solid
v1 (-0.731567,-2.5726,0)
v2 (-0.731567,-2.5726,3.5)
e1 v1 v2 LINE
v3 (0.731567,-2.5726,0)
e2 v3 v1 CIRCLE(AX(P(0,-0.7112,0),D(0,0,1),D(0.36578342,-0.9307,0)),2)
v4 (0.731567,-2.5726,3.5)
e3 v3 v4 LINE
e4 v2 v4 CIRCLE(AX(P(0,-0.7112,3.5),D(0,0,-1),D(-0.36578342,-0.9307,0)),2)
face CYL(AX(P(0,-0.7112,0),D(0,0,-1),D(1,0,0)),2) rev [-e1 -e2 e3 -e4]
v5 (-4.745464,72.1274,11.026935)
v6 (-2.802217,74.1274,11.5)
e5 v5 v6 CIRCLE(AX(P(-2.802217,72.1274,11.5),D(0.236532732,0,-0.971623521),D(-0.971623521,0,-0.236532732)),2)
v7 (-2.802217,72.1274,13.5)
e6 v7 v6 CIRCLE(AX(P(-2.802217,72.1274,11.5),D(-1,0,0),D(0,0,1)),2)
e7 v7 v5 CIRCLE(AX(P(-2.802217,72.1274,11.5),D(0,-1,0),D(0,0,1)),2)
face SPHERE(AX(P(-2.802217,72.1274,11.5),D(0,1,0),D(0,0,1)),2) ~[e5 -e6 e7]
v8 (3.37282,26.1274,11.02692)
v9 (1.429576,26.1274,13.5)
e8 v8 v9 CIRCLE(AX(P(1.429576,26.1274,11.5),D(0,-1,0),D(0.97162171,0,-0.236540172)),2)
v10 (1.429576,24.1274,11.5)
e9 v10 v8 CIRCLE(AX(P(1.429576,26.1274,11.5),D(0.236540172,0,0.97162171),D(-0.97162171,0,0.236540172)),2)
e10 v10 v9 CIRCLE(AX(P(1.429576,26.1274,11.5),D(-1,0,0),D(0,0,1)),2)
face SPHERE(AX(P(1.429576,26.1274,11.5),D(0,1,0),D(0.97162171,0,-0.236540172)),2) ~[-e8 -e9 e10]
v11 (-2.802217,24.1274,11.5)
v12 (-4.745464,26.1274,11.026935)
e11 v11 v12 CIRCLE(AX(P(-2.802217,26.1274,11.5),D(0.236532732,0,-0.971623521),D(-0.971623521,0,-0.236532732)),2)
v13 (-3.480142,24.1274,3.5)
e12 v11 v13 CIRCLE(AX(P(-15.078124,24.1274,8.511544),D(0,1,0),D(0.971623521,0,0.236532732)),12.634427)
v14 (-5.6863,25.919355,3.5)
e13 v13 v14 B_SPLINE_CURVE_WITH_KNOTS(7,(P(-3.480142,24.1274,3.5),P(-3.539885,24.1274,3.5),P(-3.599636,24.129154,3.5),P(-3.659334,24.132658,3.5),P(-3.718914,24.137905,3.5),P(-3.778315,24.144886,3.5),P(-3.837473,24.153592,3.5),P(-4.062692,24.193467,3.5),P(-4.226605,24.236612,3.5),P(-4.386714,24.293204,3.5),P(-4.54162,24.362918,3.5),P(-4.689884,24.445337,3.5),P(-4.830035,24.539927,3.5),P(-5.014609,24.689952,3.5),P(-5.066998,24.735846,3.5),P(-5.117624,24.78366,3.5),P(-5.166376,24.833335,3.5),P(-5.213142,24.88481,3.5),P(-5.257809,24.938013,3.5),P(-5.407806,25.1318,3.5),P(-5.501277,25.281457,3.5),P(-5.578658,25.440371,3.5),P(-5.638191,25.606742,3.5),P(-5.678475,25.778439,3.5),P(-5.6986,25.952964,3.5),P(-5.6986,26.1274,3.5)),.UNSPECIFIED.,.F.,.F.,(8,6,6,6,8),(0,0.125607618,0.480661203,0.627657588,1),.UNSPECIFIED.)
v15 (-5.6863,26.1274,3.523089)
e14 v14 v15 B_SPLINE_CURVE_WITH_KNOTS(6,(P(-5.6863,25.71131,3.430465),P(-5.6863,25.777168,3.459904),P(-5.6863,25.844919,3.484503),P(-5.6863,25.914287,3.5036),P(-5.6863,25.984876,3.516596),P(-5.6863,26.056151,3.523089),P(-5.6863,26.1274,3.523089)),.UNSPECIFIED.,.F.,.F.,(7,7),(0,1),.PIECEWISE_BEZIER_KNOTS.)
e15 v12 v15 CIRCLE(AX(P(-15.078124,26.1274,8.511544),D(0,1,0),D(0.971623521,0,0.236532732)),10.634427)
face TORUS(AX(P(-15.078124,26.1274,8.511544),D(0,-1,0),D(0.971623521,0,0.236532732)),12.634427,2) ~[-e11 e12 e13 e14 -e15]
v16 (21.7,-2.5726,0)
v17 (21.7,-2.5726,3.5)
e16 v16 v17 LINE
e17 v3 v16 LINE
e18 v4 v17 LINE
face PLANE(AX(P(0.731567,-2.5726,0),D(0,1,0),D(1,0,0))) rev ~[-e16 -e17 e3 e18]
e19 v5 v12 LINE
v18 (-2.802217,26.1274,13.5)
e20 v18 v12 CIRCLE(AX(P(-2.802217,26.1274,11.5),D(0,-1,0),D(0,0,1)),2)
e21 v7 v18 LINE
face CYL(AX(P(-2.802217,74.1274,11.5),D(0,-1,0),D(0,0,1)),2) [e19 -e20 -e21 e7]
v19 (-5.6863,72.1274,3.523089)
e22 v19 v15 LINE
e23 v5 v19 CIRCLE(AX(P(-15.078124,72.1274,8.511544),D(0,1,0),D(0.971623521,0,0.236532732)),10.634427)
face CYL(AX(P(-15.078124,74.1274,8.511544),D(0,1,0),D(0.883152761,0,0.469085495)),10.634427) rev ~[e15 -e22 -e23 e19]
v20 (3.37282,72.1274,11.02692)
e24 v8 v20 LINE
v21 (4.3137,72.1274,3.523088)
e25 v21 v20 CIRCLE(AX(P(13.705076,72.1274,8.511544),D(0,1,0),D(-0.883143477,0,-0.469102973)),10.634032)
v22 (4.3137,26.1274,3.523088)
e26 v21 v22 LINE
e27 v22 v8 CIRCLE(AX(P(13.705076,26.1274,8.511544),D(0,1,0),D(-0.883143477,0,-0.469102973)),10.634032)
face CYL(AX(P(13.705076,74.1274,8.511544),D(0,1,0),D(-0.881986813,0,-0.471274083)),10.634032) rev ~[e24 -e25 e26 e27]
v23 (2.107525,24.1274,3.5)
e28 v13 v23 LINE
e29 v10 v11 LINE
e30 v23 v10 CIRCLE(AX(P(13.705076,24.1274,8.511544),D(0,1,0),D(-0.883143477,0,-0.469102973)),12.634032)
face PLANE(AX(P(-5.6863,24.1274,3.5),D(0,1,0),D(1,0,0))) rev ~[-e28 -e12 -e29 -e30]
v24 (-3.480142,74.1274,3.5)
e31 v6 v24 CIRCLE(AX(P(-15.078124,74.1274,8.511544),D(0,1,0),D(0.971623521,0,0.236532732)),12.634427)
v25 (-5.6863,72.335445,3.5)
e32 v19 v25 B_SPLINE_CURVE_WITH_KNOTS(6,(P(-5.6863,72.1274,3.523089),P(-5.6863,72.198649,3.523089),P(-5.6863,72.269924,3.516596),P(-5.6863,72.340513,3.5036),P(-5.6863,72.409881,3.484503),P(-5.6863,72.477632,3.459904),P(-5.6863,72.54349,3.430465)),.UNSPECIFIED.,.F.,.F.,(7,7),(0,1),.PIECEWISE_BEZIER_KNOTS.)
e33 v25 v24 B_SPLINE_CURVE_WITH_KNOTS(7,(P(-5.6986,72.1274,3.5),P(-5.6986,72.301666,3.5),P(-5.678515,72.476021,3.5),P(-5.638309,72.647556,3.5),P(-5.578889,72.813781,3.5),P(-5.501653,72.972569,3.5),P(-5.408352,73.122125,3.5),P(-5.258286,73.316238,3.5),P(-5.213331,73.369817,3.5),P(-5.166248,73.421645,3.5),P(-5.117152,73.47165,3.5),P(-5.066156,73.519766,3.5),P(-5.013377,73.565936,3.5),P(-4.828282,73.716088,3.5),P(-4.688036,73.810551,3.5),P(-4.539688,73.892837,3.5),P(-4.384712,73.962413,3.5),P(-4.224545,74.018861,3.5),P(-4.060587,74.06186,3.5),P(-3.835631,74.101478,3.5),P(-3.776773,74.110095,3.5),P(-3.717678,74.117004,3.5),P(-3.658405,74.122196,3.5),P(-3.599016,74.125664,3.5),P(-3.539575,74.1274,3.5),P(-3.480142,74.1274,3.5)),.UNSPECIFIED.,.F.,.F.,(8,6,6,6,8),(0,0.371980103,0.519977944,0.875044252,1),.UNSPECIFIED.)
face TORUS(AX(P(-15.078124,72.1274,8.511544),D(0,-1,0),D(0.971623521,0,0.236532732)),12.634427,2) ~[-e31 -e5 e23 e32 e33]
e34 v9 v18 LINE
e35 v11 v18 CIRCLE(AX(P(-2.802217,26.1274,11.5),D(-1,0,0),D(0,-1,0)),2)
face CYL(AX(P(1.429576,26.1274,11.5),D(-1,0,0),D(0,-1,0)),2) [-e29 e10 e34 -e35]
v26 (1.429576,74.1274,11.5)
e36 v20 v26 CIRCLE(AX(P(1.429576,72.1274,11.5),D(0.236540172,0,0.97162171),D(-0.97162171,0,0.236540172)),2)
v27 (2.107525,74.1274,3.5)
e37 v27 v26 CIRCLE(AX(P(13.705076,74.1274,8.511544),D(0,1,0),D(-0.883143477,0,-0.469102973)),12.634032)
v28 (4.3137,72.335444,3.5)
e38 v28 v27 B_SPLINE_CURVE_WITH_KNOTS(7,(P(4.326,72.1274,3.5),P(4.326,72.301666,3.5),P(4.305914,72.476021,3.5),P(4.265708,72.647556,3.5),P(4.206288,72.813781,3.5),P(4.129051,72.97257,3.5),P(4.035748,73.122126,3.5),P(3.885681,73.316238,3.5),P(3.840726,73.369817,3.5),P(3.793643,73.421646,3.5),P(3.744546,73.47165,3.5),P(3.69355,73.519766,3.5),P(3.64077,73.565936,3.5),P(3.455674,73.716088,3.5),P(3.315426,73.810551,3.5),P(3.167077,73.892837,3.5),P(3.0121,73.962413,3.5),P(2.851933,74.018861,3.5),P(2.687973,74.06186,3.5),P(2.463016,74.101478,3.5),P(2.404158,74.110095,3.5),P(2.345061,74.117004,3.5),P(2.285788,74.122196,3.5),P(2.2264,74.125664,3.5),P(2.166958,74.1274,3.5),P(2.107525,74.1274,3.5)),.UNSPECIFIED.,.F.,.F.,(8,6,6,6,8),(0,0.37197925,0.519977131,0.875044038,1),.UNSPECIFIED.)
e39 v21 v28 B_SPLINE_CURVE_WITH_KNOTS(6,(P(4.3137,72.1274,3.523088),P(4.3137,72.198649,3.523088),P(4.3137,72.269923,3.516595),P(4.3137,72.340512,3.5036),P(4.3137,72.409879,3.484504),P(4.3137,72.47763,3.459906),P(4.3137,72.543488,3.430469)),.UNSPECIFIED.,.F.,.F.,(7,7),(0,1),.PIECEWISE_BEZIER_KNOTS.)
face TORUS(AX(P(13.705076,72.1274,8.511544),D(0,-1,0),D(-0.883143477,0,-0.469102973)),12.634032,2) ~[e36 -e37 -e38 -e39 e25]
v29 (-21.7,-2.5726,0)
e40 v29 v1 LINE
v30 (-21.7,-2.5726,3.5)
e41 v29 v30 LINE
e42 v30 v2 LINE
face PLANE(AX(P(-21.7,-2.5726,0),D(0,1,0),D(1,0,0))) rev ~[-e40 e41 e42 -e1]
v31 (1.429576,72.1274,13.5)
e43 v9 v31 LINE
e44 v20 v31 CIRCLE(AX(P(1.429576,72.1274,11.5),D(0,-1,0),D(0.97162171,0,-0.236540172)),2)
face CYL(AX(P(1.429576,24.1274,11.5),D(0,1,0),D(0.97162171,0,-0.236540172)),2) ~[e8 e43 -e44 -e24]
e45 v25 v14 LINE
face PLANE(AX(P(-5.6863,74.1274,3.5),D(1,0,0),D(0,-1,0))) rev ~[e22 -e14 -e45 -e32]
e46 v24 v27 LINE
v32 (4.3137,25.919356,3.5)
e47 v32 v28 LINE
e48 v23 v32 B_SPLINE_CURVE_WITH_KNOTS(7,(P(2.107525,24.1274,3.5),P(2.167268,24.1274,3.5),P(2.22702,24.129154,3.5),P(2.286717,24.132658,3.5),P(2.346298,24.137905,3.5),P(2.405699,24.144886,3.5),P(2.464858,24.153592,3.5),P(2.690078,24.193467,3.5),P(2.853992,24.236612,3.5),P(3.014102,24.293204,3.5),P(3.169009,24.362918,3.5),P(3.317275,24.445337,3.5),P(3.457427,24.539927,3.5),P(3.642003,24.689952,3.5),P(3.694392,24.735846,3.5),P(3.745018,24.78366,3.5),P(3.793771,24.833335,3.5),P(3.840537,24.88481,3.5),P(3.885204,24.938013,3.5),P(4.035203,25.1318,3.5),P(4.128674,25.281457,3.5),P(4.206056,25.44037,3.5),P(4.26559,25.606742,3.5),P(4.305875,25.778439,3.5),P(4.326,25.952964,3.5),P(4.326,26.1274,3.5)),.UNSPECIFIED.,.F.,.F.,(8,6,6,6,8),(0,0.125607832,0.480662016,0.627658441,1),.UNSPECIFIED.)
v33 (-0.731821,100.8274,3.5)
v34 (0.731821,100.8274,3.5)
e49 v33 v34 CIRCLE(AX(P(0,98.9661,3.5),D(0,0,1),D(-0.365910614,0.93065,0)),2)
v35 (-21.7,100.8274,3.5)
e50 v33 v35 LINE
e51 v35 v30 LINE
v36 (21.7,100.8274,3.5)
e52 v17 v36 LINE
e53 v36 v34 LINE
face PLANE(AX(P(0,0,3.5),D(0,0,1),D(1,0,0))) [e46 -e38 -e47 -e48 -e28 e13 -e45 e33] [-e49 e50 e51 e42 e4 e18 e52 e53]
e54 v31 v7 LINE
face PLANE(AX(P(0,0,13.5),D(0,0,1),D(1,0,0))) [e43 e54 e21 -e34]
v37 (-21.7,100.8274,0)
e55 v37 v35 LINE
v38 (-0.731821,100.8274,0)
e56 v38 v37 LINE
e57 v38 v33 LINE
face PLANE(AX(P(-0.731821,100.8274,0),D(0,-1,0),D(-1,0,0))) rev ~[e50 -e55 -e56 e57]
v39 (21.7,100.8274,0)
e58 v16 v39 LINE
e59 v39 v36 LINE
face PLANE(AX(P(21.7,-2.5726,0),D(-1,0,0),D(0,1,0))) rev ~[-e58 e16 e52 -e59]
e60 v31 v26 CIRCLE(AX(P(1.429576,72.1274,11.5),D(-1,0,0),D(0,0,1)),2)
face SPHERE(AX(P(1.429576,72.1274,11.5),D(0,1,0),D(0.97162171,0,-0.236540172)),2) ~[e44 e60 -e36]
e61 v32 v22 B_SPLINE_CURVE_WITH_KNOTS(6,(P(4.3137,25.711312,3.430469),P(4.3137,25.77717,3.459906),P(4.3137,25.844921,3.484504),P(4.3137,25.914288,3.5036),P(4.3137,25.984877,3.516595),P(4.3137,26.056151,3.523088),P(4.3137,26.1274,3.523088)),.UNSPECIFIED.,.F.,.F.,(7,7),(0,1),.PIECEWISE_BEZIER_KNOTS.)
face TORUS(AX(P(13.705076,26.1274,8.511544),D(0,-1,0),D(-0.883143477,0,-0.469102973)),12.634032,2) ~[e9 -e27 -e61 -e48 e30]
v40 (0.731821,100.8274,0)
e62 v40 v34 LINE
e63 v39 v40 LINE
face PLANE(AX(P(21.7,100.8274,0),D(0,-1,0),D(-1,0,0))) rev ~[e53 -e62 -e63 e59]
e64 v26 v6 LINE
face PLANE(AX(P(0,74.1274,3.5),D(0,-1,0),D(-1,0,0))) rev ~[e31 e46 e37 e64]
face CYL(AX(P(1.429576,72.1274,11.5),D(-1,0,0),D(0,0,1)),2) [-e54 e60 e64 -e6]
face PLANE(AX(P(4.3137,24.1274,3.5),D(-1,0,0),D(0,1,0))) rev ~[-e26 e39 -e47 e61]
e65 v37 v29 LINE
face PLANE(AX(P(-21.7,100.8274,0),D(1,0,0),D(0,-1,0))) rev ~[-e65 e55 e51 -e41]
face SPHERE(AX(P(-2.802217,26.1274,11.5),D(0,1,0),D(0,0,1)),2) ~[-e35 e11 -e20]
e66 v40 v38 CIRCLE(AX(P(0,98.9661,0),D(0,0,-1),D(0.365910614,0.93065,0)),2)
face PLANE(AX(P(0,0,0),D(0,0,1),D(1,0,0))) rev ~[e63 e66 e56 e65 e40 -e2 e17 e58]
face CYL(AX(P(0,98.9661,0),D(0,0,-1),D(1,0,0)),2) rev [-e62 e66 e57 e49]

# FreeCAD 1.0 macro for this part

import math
import FreeCAD as App
import Part
import Sketcher

V = App.Vector


def edges_at(feature, points):
    """Names of the edges that pass closest to the given points."""
    edges = feature.Shape.Edges
    near = lambda p: min(range(len(edges)), key=lambda i: edges[i].distToShape(Part.Vertex(*p))[0])
    return sorted({f"Edge{near(p) + 1}" for p in points})


def add_polygon(sketch, points):
    """Adds a closed chain of lines whose ends are joined by coincident constraints."""
    first, n = sketch.GeometryCount, len(points)
    for a, b in zip(points, points[1:] + points[:1]):
        sketch.addGeometry(Part.LineSegment(App.Vector(*a, 0), App.Vector(*b, 0)), False)
    for i in range(n):
        sketch.addConstraint(Sketcher.Constraint("Coincident", first + i, 2, first + (i + 1) % n, 1))

doc = App.newDocument("Part")
body = doc.addObject("PartDesign::Body", "Body")

sketch1 = doc.addObject("Sketcher::SketchObject", "Sketch")
body.addObject(sketch1)
sketch1.AttachmentSupport = (doc.XY_Plane, [""])
sketch1.MapMode = "FlatFace"
sketch1.addGeometry([
    Part.ArcOfCircle(Part.Circle(V(0, 99, 0), V(0, 0, 1), 2), math.radians(111), math.radians(429)),
    Part.LineSegment(V(-0.7, 100.8, 0), V(-21.7, 100.8, 0)),
    Part.LineSegment(V(-21.7, 100.8, 0), V(-21.7, -2.6, 0)),
    Part.LineSegment(V(-21.7, -2.6, 0), V(-0.7, -2.6, 0)),
    Part.ArcOfCircle(Part.Circle(V(0, -0.7, 0), V(0, 0, 1), 2), math.radians(-69), math.radians(249)),
    Part.LineSegment(V(0.7, -2.6, 0), V(21.7, -2.6, 0)),
    Part.LineSegment(V(21.7, -2.6, 0), V(21.7, 100.8, 0)),
    Part.LineSegment(V(21.7, 100.8, 0), V(0.7, 100.8, 0)),
], False)
sketch1.addConstraint([
    Sketcher.Constraint("Coincident", 0, 1, 1, 1),
    Sketcher.Constraint("Coincident", 1, 2, 2, 1),
    Sketcher.Constraint("Coincident", 2, 2, 3, 1),
    Sketcher.Constraint("Coincident", 3, 2, 4, 2),
    Sketcher.Constraint("Coincident", 4, 1, 5, 1),
    Sketcher.Constraint("Coincident", 5, 2, 6, 1),
    Sketcher.Constraint("Coincident", 6, 2, 7, 1),
    Sketcher.Constraint("Coincident", 7, 2, 0, 2),
    Sketcher.Constraint("Horizontal", 1),
    Sketcher.Constraint("Vertical", 2),
    Sketcher.Constraint("Horizontal", 3),
    Sketcher.Constraint("Horizontal", 5),
    Sketcher.Constraint("Vertical", 6),
    Sketcher.Constraint("Horizontal", 7),
    Sketcher.Constraint("Equal", 0, 4),
    Sketcher.Constraint("Symmetric", 3, 2, 4, 1, -2),
    Sketcher.Constraint("Symmetric", 1, 2, 6, 2, -2),
    Sketcher.Constraint("PointOnObject", 0, 3, -2),
    Sketcher.Constraint("Radius", 0, 2.0),
    Sketcher.Constraint("DistanceY", 2, 2, 2, 1, 103.4),
    Sketcher.Constraint("DistanceX", 1, 2, -1, 1, 21.7),
    Sketcher.Constraint("DistanceX", 1, 2, 1, 1, 20.9682),
    Sketcher.Constraint("DistanceX", 3, 1, 3, 2, 20.9684),
    Sketcher.Constraint("DistanceY", -1, 1, 0, 3, 98.966),
])
pad1 = doc.addObject("PartDesign::Pad", "Pad")
body.addObject(pad1)
pad1.Profile = sketch1
pad1.Length = 3.5

sketch2 = doc.addObject("Sketcher::SketchObject", "Sketch001")
body.addObject(sketch2)
sketch2.AttachmentSupport = (doc.XY_Plane, [""])
sketch2.MapMode = "FlatFace"
sketch2.AttachmentOffset = App.Placement(V(0, 0, 3.5), App.Rotation())
add_polygon(sketch2, [(-6, 24), (4, 24), (4, 74), (-6, 74)])
sketch2.addConstraint([
    Sketcher.Constraint("Horizontal", 0),
    Sketcher.Constraint("Vertical", 1),
    Sketcher.Constraint("Horizontal", 2),
    Sketcher.Constraint("Vertical", 3),
    Sketcher.Constraint("DistanceX", 0, 1, 0, 2, 10.0),
    Sketcher.Constraint("DistanceY", 1, 1, 1, 2, 50.0),
    Sketcher.Constraint("DistanceX", -1, 1, 0, 2, 4.3137),
    Sketcher.Constraint("DistanceY", -1, 1, 0, 2, 24.1274),
])
pad2 = doc.addObject("PartDesign::Pad", "Pad001")
body.addObject(pad2)
pad2.Profile = sketch2
pad2.Length = 10

sketch3 = doc.addObject("Sketcher::SketchObject", "Sketch002")
body.addObject(sketch3)
sketch3.AttachmentSupport = (doc.XZ_Plane, [""])
sketch3.MapMode = "FlatFace"
sketch3.AttachmentOffset = App.Placement(V(0, 0, -74.1274), App.Rotation())
sketch3.addGeometry([
    Part.ArcOfCircle(Part.Circle(V(14, 9, 0), V(0, 0, 1), 11), math.radians(152), math.radians(208)),
    Part.LineSegment(V(4, 14, 0), V(4, 4, 0)),
    Part.ArcOfCircle(Part.Circle(V(-15, 9, 0), V(0, 0, 1), 11), math.radians(-28), math.radians(28)),
    Part.LineSegment(V(-6, 4, 0), V(-6, 14, 0)),
], False)
sketch3.addConstraint([
    Sketcher.Constraint("Coincident", 0, 1, 1, 1),
    Sketcher.Constraint("Coincident", 1, 2, 0, 2),
    Sketcher.Constraint("Coincident", 2, 1, 3, 1),
    Sketcher.Constraint("Coincident", 3, 2, 2, 2),
    Sketcher.Constraint("Vertical", 1),
    Sketcher.Constraint("Vertical", 3),
    Sketcher.Constraint("Equal", 0, 2),
    Sketcher.Constraint("Horizontal", 0, 3, 2, 3),
    Sketcher.Constraint("Horizontal", 1, 2, 2, 1),
    Sketcher.Constraint("DistanceX", 2, 1, 1, 2, 10.0),
    Sketcher.Constraint("DistanceY", -1, 1, 0, 1, 13.5),
    Sketcher.Constraint("Radius", 0, 10.6343),
    Sketcher.Constraint("DistanceY", 1, 2, 1, 1, 9.977),
    Sketcher.Constraint("DistanceX", 2, 3, -1, 1, 15.078),
])
pocket1 = doc.addObject("PartDesign::Pocket", "Pocket")
body.addObject(pocket1)
pocket1.Profile = sketch3
pocket1.Length = 58.75
pocket1.Reversed = True
doc.recompute()

fillet = doc.addObject("PartDesign::Fillet", "Fillet")
body.addObject(fillet)
fillet.Base = (pocket1, edges_at(pocket1, [(4.314, 49.127, 13.5), (-5.686, 49.127, 13.5)]))
fillet.Radius = 2
doc.recompute()

fillet2 = doc.addObject("PartDesign::Fillet", "Fillet001")
body.addObject(fillet2)
fillet2.Base = (fillet, edges_at(fillet, [
    (-4.526, 74.127, 7.189),
    (-0.686, 74.127, 13.5),
    (3.002, 74.127, 12.736),
    (3.154, 74.127, 7.189),
    (-4.375, 74.127, 12.736),
    (-0.686, 24.127, 13.5),
    (3.002, 24.127, 12.736),
    (3.154, 24.127, 7.189),
    (-4.526, 24.127, 7.189),
    (-4.375, 24.127, 12.736),
]))
fillet2.Radius = 2

doc.recompute()
